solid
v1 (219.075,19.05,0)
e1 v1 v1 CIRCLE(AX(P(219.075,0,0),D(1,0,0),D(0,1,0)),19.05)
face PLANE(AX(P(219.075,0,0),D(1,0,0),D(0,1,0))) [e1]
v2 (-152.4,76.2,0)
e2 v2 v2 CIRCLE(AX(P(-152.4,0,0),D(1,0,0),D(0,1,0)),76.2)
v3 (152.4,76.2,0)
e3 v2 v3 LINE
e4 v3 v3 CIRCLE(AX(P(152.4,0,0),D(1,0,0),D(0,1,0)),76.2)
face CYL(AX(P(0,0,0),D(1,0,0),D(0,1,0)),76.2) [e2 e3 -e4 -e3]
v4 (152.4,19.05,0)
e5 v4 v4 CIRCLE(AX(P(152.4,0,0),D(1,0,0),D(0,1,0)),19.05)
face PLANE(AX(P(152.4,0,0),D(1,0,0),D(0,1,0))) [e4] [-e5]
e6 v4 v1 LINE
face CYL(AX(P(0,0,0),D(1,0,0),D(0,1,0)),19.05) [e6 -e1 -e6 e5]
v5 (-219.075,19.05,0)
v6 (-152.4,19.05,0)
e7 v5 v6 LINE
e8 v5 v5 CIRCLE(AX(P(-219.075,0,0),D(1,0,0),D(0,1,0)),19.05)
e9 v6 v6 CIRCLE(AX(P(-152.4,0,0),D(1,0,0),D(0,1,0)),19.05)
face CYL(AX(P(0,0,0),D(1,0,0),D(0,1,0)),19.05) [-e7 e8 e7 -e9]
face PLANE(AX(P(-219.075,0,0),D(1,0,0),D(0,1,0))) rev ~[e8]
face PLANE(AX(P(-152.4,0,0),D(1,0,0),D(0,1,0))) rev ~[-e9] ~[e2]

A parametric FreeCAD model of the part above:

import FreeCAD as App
import Part
import Sketcher
Q = App.Units.Quantity

doc = App.newDocument("Part")
body = doc.addObject("PartDesign::Body", "Body")

sketch1 = body.newObject("Sketcher::SketchObject", "Sketch")
sketch1.AttachmentSupport = (doc.getObject("YZ_Plane"), [""])
sketch1.MapMode = "FlatFace"
sketch1.addGeometry(Part.Circle(App.Vector(0, 0, 0), App.Vector(0, 0, 1), 19), False)
sketch1.addConstraint([
    Sketcher.Constraint("Coincident", 0, 3, -1, 1),
    Sketcher.Constraint("Diameter", 0, Q("1.5 in")),
])
pad1 = body.newObject("PartDesign::Pad", "Pad")
pad1.Profile = sketch1
pad1.Length = Q("17.25 in")
pad1.Midplane = True

sketch2 = body.newObject("Sketcher::SketchObject", "Sketch001")
sketch2.AttachmentSupport = (doc.getObject("YZ_Plane"), [""])
sketch2.MapMode = "FlatFace"
sketch2.addGeometry(Part.Circle(App.Vector(0, 0, 0), App.Vector(0, 0, 1), 76), False)
sketch2.addConstraint([
    Sketcher.Constraint("Coincident", 0, 3, -1, 1),
    Sketcher.Constraint("Diameter", 0, Q("6 in")),
])
pad2 = body.newObject("PartDesign::Pad", "Pad001")
pad2.Profile = sketch2
pad2.Length = Q("12 in")
pad2.Midplane = True

doc.recompute()
